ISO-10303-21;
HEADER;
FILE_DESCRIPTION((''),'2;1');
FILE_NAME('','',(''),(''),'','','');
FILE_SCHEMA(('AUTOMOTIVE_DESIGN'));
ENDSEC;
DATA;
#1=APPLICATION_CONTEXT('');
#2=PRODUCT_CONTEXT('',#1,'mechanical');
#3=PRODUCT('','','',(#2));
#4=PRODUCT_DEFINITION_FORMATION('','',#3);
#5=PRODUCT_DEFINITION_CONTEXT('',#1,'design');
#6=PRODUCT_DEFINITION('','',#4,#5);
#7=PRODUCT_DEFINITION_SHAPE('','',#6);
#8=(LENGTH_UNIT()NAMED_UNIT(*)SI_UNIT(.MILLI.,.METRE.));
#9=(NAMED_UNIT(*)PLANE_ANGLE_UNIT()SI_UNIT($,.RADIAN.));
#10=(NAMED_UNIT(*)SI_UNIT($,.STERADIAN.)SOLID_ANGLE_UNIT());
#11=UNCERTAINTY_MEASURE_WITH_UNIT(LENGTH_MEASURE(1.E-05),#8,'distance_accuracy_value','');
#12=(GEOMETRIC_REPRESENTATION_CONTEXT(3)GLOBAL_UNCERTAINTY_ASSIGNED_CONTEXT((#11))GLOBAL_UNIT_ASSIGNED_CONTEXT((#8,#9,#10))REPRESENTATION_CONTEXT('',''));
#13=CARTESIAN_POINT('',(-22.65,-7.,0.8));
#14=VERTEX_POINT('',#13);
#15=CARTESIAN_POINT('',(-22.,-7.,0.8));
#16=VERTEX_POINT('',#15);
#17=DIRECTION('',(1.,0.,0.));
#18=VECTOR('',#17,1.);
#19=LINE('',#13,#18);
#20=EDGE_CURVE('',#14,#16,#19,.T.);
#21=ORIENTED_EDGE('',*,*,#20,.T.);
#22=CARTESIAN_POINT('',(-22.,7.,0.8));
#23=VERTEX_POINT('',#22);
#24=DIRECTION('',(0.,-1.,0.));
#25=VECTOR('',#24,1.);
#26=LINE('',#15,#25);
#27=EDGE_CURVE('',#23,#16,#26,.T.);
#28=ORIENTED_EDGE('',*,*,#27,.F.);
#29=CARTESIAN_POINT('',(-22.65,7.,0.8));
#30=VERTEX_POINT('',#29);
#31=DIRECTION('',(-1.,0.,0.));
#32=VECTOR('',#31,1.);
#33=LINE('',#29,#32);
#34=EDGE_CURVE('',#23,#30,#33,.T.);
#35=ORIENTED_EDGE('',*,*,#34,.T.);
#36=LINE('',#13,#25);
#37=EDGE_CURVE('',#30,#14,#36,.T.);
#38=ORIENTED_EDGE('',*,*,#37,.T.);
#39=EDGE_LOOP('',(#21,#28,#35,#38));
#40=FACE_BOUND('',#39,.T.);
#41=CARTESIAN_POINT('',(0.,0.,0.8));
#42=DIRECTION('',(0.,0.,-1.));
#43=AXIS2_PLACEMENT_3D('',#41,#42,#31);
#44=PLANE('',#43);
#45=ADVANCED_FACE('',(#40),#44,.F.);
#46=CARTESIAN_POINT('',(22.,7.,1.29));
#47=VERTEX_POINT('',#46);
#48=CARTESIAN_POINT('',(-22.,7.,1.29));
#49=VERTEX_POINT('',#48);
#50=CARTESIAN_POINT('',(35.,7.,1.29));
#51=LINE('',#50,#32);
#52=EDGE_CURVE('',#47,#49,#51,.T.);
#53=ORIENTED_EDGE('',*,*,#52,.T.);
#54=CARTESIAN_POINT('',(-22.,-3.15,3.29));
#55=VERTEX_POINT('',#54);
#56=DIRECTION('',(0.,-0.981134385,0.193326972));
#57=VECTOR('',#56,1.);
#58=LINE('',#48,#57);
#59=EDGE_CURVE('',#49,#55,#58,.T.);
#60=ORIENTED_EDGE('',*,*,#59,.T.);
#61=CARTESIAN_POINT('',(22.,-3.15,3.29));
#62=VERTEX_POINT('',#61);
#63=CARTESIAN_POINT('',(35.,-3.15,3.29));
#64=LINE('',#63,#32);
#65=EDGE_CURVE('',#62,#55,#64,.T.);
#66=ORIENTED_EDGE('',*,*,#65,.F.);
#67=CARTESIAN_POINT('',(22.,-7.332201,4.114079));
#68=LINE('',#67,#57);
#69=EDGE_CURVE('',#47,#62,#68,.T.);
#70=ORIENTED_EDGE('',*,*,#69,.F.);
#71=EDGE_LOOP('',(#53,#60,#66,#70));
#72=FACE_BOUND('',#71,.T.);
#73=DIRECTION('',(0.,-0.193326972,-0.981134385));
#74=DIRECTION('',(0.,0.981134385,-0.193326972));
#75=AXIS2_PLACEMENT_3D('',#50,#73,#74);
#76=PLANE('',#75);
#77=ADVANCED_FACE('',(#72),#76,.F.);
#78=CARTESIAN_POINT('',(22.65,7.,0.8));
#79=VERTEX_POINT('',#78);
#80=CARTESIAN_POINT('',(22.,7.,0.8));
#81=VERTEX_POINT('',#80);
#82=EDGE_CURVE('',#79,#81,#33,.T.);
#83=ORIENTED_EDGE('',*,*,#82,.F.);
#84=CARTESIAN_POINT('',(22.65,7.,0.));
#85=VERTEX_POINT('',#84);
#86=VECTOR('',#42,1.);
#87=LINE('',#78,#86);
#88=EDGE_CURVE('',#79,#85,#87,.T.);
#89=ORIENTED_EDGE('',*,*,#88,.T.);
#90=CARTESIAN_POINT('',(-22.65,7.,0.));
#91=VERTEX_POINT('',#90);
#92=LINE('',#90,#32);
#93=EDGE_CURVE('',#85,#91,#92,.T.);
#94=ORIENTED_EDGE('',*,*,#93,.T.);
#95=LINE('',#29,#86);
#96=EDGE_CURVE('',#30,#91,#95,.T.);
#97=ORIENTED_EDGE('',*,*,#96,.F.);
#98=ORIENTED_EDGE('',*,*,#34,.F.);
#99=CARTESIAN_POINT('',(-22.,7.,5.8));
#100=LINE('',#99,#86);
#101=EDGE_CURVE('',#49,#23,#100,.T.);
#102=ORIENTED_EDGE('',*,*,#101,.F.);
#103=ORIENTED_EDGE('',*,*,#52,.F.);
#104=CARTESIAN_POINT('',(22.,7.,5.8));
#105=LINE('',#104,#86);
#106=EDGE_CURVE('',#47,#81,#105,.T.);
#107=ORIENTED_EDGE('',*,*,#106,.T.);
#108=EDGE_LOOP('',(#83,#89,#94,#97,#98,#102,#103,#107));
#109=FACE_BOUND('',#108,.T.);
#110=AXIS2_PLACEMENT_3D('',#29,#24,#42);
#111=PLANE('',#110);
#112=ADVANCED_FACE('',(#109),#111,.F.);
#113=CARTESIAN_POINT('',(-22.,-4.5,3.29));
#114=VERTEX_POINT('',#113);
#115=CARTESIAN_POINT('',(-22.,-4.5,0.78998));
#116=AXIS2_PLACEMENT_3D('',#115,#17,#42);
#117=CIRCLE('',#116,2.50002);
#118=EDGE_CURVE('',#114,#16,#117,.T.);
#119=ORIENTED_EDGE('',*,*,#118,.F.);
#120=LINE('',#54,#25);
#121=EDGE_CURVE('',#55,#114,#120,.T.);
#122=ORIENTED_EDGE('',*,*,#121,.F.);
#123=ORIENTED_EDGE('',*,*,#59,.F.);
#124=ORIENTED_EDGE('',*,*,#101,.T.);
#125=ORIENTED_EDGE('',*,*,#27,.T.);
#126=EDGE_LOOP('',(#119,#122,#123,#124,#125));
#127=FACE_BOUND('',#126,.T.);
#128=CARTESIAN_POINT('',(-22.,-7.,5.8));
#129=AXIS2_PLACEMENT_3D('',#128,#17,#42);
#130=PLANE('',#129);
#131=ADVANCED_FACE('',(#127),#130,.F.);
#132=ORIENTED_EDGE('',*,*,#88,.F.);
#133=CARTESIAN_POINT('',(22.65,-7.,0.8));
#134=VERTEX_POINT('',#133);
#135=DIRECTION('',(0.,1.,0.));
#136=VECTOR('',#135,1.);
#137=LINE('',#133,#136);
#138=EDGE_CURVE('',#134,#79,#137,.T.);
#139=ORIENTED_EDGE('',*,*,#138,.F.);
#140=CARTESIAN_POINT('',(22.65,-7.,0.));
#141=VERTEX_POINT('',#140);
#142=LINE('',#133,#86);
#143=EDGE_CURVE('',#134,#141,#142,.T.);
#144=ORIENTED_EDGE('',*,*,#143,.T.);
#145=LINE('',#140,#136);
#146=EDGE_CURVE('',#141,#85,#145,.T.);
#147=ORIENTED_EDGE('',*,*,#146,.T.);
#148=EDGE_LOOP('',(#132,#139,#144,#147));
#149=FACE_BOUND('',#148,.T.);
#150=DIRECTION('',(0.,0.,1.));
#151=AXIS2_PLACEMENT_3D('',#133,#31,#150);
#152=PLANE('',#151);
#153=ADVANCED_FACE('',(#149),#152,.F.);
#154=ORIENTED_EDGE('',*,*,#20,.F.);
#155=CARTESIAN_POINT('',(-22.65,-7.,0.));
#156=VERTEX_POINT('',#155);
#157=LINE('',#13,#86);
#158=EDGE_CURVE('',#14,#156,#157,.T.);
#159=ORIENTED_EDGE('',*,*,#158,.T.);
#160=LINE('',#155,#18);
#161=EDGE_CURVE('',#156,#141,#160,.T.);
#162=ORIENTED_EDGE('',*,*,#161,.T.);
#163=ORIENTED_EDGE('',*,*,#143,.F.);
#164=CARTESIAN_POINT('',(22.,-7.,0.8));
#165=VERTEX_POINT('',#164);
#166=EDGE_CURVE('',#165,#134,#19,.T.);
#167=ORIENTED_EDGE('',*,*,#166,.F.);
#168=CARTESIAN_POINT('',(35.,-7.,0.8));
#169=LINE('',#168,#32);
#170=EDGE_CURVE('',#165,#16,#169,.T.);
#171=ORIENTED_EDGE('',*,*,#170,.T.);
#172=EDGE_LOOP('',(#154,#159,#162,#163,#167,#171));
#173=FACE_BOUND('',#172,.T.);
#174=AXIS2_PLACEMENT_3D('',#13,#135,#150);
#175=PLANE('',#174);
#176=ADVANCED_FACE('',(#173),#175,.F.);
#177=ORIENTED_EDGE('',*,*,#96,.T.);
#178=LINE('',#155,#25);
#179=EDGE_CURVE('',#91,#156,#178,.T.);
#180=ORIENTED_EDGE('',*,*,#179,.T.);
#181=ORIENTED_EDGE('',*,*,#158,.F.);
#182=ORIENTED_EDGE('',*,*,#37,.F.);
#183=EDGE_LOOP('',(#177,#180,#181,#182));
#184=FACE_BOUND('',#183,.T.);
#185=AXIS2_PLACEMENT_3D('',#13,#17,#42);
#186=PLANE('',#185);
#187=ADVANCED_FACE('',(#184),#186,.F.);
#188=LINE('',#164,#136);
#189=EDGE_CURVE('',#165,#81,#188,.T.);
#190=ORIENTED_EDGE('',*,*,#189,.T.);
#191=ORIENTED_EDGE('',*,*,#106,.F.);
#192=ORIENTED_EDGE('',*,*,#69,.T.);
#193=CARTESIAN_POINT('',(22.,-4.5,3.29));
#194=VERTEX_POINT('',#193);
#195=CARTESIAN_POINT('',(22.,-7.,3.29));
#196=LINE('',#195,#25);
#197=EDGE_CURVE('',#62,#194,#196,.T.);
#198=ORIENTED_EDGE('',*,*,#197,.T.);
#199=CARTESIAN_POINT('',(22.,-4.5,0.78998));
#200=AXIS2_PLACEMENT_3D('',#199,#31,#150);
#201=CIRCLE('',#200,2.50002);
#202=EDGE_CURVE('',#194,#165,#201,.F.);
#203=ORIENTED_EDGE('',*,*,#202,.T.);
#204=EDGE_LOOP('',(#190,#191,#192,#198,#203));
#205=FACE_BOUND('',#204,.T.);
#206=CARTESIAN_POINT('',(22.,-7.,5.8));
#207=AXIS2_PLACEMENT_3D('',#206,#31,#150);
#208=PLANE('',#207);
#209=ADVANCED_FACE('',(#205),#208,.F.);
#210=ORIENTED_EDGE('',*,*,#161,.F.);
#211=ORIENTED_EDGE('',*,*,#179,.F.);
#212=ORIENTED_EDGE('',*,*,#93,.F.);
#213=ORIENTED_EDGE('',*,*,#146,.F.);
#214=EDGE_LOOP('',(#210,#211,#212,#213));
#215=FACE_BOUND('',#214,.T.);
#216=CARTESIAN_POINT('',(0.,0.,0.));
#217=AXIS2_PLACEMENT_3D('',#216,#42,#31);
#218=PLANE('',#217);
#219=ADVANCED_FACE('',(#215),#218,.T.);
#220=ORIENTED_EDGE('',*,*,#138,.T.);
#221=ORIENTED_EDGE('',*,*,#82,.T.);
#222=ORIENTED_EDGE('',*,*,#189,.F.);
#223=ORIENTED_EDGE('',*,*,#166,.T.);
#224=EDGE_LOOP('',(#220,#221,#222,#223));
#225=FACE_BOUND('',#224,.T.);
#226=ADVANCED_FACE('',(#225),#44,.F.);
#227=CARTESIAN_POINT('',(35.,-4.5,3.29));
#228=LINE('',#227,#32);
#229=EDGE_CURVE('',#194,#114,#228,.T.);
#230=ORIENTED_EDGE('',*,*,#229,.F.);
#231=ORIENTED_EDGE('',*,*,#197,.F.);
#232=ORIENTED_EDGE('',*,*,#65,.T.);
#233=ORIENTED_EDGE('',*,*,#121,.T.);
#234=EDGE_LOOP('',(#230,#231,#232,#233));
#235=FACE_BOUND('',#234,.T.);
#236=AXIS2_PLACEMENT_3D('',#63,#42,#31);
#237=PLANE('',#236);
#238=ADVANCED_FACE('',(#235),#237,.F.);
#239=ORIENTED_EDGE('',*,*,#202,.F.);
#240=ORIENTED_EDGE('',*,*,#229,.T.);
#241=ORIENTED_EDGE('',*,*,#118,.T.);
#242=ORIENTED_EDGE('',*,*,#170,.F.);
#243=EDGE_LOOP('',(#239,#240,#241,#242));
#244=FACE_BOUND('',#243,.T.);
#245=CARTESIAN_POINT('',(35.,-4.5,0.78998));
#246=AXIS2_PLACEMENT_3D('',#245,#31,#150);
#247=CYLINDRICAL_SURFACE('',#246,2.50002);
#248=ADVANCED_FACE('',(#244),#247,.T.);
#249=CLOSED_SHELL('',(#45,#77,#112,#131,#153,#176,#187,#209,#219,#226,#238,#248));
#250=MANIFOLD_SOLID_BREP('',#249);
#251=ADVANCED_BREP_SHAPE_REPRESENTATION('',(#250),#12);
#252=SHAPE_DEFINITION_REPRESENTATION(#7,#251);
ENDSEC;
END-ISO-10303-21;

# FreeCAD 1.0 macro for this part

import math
import FreeCAD as App
import Part
import Sketcher

V = App.Vector


def add_polygon(sketch, points):
    """Adds a closed chain of lines whose ends are joined by coincident constraints."""
    first, n = sketch.GeometryCount, len(points)
    for a, b in zip(points, points[1:] + points[:1]):
        sketch.addGeometry(Part.LineSegment(App.Vector(*a, 0), App.Vector(*b, 0)), False)
    for i in range(n):
        sketch.addConstraint(Sketcher.Constraint("Coincident", first + i, 2, first + (i + 1) % n, 1))

doc = App.newDocument("Part")
params = doc.addObject("Spreadsheet::Sheet", "Params")
for row, (alias, value) in enumerate([
    ("sketch1_height", "14 mm"),
    ("sketch1_width", "45.3 mm"),
    ("pad1_length", "0.8 mm"),
    ("sketch2_width", "44 mm"),
    ("sketch2_height", "14 mm"),
    ("pad2_length", "5 mm"),
    ("sketch3_width", "1.35 mm"),
    ("pocket1_length", "57 mm"),
], start=1):
    params.set(f"A{row}", alias)
    params.set(f"B{row}", "=" + value)
    params.setAlias(f"B{row}", alias)

body = doc.addObject("PartDesign::Body", "Body")

# Sketch on XY plane
sketch1 = doc.addObject("Sketcher::SketchObject", "Sketch")
body.addObject(sketch1)
sketch1.AttachmentSupport = (doc.XY_Plane, [""])
sketch1.MapMode = "FlatFace"
add_polygon(sketch1, [(-23, 7), (-23, -7), (23, -7), (23, 7)])  # lines 0-3
sketch1.addConstraint(Sketcher.Constraint("Vertical", 0))
sketch1.addConstraint(Sketcher.Constraint("Horizontal", 1))
sketch1.addConstraint(Sketcher.Constraint("Vertical", 2))
sketch1.addConstraint(Sketcher.Constraint("Horizontal", 3))
sketch1.addConstraint(Sketcher.Constraint("Symmetric", 0, 2, 2, 2, -1, 1))
sketch1.addConstraint(Sketcher.Constraint("DistanceY", 0, 2, 0, 1, 14.0))
sketch1.addConstraint(Sketcher.Constraint("DistanceX", 1, 1, 1, 2, 45.3))
sketch1.setExpression("Constraints[9]", "Params.sketch1_height")
sketch1.setExpression("Constraints[10]", "Params.sketch1_width")
pad1 = doc.addObject("PartDesign::Pad", "Pad")
body.addObject(pad1)
pad1.Profile = sketch1
pad1.setExpression("Length", "Params.pad1_length")

# Sketch on XY plane
sketch2 = doc.addObject("Sketcher::SketchObject", "Sketch001")
body.addObject(sketch2)
sketch2.AttachmentSupport = (doc.XY_Plane, [""])
sketch2.MapMode = "FlatFace"
sketch2.AttachmentOffset = App.Placement(V(0, 0, 0.8), App.Rotation())
add_polygon(sketch2, [(-22, 7), (-22, -7), (22, -7), (22, 7)])  # lines 0-3
sketch2.addConstraint(Sketcher.Constraint("Vertical", 0))
sketch2.addConstraint(Sketcher.Constraint("Horizontal", 1))
sketch2.addConstraint(Sketcher.Constraint("Vertical", 2))
sketch2.addConstraint(Sketcher.Constraint("Horizontal", 3))
sketch2.addConstraint(Sketcher.Constraint("Symmetric", 0, 2, 2, 2, -1, 1))
sketch2.addConstraint(Sketcher.Constraint("DistanceX", 1, 1, 1, 2, 44.0))
sketch2.addConstraint(Sketcher.Constraint("DistanceY", 0, 2, 0, 1, 14.0))
sketch2.setExpression("Constraints[9]", "Params.sketch2_width")
sketch2.setExpression("Constraints[10]", "Params.sketch2_height")
pad2 = doc.addObject("PartDesign::Pad", "Pad001")
body.addObject(pad2)
pad2.Profile = sketch2
pad2.setExpression("Length", "Params.pad2_length")

# Sketch on YZ plane
sketch3 = doc.addObject("Sketcher::SketchObject", "Sketch002")
body.addObject(sketch3)
sketch3.AttachmentSupport = (doc.YZ_Plane, [""])
sketch3.MapMode = "FlatFace"
sketch3.AttachmentOffset = App.Placement(V(0, 0, -22), App.Rotation())
sketch3.addGeometry(Part.LineSegment(V(7, 1.3, 0), V(-3.1, 3.3, 0)), False)
sketch3.addGeometry(Part.LineSegment(V(-3.1, 3.3, 0), V(-4.5, 3.3, 0)), False)
sketch3.addGeometry(Part.ArcOfCircle(Part.Circle(V(-4.5, 0.8, 0), V(0, 0, 1), 2.5), math.radians(90), math.radians(180)), False)
sketch3.addGeometry(Part.LineSegment(V(-7, 0.8, 0), V(-10.7, 9.6, 0)), False)
sketch3.addGeometry(Part.LineSegment(V(-10.7, 9.6, 0), V(9.6, 7.5, 0)), False)
sketch3.addGeometry(Part.LineSegment(V(9.6, 7.5, 0), V(7, 1.3, 0)), False)
sketch3.addConstraint(Sketcher.Constraint("Coincident", 0, 2, 1, 1))
sketch3.addConstraint(Sketcher.Constraint("Tangent", 1, 2, 2, 1))
sketch3.addConstraint(Sketcher.Constraint("Coincident", 2, 2, 3, 1))
sketch3.addConstraint(Sketcher.Constraint("Coincident", 3, 2, 4, 1))
sketch3.addConstraint(Sketcher.Constraint("Coincident", 4, 2, 5, 1))
sketch3.addConstraint(Sketcher.Constraint("Coincident", 5, 2, 0, 1))
sketch3.addConstraint(Sketcher.Constraint("Horizontal", 1))
sketch3.addConstraint(Sketcher.Constraint("DistanceX", 2, 2, -1, 1, 7.0))
sketch3.addConstraint(Sketcher.Constraint("DistanceX", -1, 1, 5, 2, 7.0))
sketch3.addConstraint(Sketcher.Constraint("DistanceY", 5, 2, 0, 2, 2.0))
sketch3.addConstraint(Sketcher.Constraint("DistanceX", 1, 2, 1, 1, 1.35))
sketch3.addConstraint(Sketcher.Constraint("DistanceX", 2, 3, -1, 1, 4.5))
sketch3.addConstraint(Sketcher.Constraint("DistanceY", -1, 1, 2, 2, 0.8))
sketch3.addConstraint(Sketcher.Constraint("DistanceY", -1, 1, 0, 2, 3.29))
sketch3.addConstraint(Sketcher.Constraint("Distance", 4, 20.384579))
sketch3.addConstraint(Sketcher.Constraint("Distance", 5, 6.728159))
sketch3.addConstraint(Sketcher.Constraint("DistanceX", -1, 1, 4, 2, 9.595509))
sketch3.addConstraint(Sketcher.Constraint("Distance", 3, 9.568175))
sketch3.setExpression("Constraints[10]", "Params.sketch3_width")
pocket1 = doc.addObject("PartDesign::Pocket", "Pocket")
body.addObject(pocket1)
pocket1.Profile = sketch3
pocket1.setExpression("Length", "Params.pocket1_length")
pocket1.Reversed = True

doc.recompute()
